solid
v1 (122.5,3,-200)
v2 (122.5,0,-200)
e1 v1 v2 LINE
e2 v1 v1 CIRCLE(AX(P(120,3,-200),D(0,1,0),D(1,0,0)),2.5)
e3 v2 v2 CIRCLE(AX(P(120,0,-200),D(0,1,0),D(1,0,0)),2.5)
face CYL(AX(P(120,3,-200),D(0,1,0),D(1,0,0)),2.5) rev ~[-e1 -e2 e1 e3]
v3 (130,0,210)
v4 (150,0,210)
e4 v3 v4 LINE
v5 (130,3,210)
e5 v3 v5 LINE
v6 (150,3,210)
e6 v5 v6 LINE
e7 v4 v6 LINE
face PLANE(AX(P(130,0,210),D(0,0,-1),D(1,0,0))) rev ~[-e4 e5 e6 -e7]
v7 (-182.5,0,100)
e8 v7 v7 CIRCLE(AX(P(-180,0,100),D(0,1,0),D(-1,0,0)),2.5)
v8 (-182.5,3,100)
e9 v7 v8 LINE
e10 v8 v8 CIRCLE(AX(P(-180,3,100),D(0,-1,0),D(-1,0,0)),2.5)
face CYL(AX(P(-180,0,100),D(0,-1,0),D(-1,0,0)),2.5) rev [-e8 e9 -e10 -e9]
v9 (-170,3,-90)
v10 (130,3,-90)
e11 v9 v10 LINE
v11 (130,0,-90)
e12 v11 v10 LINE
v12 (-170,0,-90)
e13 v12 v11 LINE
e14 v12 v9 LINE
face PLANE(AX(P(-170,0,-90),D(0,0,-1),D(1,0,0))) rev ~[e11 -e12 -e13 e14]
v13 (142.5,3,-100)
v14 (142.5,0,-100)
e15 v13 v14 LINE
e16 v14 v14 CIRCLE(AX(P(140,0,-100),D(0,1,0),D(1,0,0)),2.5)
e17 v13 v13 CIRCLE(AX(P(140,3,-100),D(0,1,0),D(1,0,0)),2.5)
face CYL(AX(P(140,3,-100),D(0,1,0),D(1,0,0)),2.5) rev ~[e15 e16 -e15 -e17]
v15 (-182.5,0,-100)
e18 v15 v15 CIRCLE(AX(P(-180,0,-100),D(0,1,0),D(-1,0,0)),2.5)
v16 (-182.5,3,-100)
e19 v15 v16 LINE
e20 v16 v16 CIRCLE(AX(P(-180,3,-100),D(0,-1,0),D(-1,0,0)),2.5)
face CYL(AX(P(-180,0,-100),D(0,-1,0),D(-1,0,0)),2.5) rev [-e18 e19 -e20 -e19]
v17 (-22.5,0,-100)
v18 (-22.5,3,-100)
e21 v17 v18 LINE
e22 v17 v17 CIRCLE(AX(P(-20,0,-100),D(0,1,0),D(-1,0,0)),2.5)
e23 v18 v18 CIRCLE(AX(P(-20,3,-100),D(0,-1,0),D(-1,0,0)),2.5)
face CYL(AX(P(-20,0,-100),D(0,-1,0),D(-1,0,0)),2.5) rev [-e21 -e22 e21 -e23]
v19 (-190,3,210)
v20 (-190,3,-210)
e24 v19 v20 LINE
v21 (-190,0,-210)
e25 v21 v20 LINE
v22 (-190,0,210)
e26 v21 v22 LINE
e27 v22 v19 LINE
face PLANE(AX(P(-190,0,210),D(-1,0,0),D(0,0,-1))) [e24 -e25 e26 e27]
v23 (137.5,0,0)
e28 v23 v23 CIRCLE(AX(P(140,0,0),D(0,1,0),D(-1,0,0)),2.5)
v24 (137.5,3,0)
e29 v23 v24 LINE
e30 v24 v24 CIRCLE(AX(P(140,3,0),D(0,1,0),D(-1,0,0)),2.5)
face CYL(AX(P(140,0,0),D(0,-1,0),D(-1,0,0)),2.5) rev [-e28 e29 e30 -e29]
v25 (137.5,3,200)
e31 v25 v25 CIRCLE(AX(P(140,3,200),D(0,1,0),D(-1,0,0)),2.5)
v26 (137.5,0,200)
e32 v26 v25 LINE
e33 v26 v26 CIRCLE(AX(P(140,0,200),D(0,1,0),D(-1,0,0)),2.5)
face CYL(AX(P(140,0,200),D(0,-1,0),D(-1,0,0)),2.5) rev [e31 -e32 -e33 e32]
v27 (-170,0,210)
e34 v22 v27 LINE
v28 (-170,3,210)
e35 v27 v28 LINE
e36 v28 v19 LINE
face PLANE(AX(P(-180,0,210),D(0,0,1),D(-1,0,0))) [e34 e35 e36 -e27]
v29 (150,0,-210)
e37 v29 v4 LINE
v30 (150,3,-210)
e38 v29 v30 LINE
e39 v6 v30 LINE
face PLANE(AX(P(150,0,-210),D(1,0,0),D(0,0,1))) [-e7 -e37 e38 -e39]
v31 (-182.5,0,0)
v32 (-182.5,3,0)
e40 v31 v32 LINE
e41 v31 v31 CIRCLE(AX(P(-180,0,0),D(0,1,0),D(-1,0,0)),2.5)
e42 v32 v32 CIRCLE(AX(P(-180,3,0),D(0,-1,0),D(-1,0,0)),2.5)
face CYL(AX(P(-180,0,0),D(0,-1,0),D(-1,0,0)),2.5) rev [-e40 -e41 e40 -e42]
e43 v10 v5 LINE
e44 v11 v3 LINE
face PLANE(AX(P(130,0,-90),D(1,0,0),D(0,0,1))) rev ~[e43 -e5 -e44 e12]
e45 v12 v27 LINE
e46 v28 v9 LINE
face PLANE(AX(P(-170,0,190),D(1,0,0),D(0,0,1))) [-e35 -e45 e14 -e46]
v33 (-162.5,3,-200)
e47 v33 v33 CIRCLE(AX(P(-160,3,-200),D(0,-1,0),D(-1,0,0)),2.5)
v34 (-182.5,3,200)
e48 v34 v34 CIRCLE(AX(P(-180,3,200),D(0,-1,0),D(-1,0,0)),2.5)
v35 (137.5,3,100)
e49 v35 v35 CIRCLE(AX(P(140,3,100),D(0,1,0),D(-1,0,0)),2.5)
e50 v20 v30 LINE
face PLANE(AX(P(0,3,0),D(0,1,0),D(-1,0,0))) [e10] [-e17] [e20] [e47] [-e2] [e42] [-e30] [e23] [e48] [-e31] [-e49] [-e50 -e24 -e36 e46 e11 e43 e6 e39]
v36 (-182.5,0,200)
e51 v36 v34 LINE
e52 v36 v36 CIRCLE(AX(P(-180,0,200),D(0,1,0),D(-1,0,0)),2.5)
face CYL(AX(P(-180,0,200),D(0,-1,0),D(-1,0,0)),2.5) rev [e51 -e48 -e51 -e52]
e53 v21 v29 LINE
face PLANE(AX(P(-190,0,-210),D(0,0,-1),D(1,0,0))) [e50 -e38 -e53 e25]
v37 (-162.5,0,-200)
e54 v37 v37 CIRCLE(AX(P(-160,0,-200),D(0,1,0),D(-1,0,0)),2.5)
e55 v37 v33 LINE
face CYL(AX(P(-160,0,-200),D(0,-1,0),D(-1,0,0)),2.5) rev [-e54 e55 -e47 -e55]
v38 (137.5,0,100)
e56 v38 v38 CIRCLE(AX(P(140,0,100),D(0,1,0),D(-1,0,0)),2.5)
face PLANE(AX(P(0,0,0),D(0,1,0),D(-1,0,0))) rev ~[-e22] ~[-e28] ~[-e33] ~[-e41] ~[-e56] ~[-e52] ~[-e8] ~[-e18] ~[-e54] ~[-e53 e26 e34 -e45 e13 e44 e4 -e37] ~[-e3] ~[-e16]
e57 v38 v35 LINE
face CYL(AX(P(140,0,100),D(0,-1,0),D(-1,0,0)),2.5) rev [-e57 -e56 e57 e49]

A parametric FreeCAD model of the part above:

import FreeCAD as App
import Part
import Sketcher

V = App.Vector


def add_polygon(sketch, points):
    """Adds a closed chain of lines whose ends are joined by coincident constraints."""
    first, n = sketch.GeometryCount, len(points)
    for a, b in zip(points, points[1:] + points[:1]):
        sketch.addGeometry(Part.LineSegment(App.Vector(*a, 0), App.Vector(*b, 0)), False)
    for i in range(n):
        sketch.addConstraint(Sketcher.Constraint("Coincident", first + i, 2, first + (i + 1) % n, 1))

doc = App.newDocument("Part")
params = doc.addObject("Spreadsheet::Sheet", "Params")
for row, (alias, value) in enumerate([
    ("sketch1_diameter", "5 mm"),
    ("sketch1_width", "20 mm"),
    ("sketch1_width2", "340 mm"),
    ("sketch1_height", "420 mm"),
    ("pad1_length", "3 mm"),
    ("sketch2_diameter", "5 mm"),
    ("pocket1_length", "3 mm"),
], start=1):
    params.set(f"A{row}", alias)
    params.set(f"B{row}", "=" + value)
    params.setAlias(f"B{row}", alias)

body = doc.addObject("PartDesign::Body", "Body")

sketch1 = body.newObject("Sketcher::SketchObject", "Sketch")
sketch1.AttachmentSupport = (doc.getObject("XZ_Plane"), [""])
sketch1.MapMode = "FlatFace"
add_polygon(sketch1, [(-190, 210), (-170, 210), (-170, -90), (130, -90), (130, 210), (150, 210), (150, -210), (-190, -210)])
sketch1.addGeometry(Part.Circle(V(-180, 0, 0), V(0, 0, 1), 2.5), False)
sketch1.addGeometry(Part.Circle(V(-180, 100, 0), V(0, 0, 1), 2.5), False)
sketch1.addGeometry(Part.Circle(V(-180, 200, 0), V(0, 0, 1), 2.5), False)
sketch1.addGeometry(Part.Circle(V(-180, -100, 0), V(0, 0, 1), 2.5), False)
sketch1.addGeometry(Part.Circle(V(-160, -200, 0), V(0, 0, 1), 2.5), False)
sketch1.addGeometry(Part.Circle(V(-20, -100, 0), V(0, 0, 1), 2.5), False)
sketch1.addGeometry(Part.Circle(V(140, 200, 0), V(0, 0, 1), 2.5), False)
sketch1.addGeometry(Part.Circle(V(140, 0, 0), V(0, 0, 1), 2.5), False)
sketch1.addGeometry(Part.Circle(V(140, 100, 0), V(0, 0, 1), 2.5), False)
sketch1.addConstraint(Sketcher.Constraint("Horizontal", 0))
sketch1.addConstraint(Sketcher.Constraint("Vertical", 1))
sketch1.addConstraint(Sketcher.Constraint("Horizontal", 2))
sketch1.addConstraint(Sketcher.Constraint("Vertical", 3))
sketch1.addConstraint(Sketcher.Constraint("Horizontal", 4))
sketch1.addConstraint(Sketcher.Constraint("Vertical", 5))
sketch1.addConstraint(Sketcher.Constraint("Horizontal", 6))
sketch1.addConstraint(Sketcher.Constraint("Vertical", 7))
sketch1.addConstraint(Sketcher.Constraint("Equal", 8, 9))
sketch1.addConstraint(Sketcher.Constraint("Equal", 9, 10))
sketch1.addConstraint(Sketcher.Constraint("Equal", 10, 11))
sketch1.addConstraint(Sketcher.Constraint("Equal", 11, 12))
sketch1.addConstraint(Sketcher.Constraint("Equal", 12, 13))
sketch1.addConstraint(Sketcher.Constraint("Equal", 13, 14))
sketch1.addConstraint(Sketcher.Constraint("Equal", 14, 15))
sketch1.addConstraint(Sketcher.Constraint("Equal", 15, 16))
sketch1.addConstraint(Sketcher.Constraint("Symmetric", 9, 3, 11, 3, -1))
sketch1.addConstraint(Sketcher.Constraint("PointOnObject", 8, 3, -1))
sketch1.addConstraint(Sketcher.Constraint("PointOnObject", 15, 3, -1))
sketch1.addConstraint(Sketcher.Constraint("Horizontal", 11, 3, 13, 3))
sketch1.addConstraint(Sketcher.Constraint("Horizontal", 10, 3, 14, 3))
sketch1.addConstraint(Sketcher.Constraint("Horizontal", 9, 3, 16, 3))
sketch1.addConstraint(Sketcher.Constraint("Horizontal", 0, 2, 3, 2))
sketch1.addConstraint(Sketcher.Constraint("Vertical", 8, 3, 9, 3))
sketch1.addConstraint(Sketcher.Constraint("Vertical", 9, 3, 10, 3))
sketch1.addConstraint(Sketcher.Constraint("Vertical", 14, 3, 15, 3))
sketch1.addConstraint(Sketcher.Constraint("Vertical", 15, 3, 16, 3))
sketch1.addConstraint(Sketcher.Constraint("Equal", 0, 4))
sketch1.addConstraint(Sketcher.Constraint("Equal", 2, 1))
sketch1.addConstraint(Sketcher.Constraint("Diameter", 8, 5.0))
sketch1.addConstraint(Sketcher.Constraint("DistanceX", 0, 1, 0, 2, 20.0))
sketch1.addConstraint(Sketcher.Constraint("DistanceX", 6, 2, 6, 1, 340.0))
sketch1.addConstraint(Sketcher.Constraint("DistanceY", 5, 2, 5, 1, 420.0))
sketch1.addConstraint(Sketcher.Constraint("DistanceX", 13, 3, -1, 1, 20.0))
sketch1.addConstraint(Sketcher.Constraint("DistanceX", -1, 1, 14, 3, 140.0))
sketch1.addConstraint(Sketcher.Constraint("DistanceX", 11, 3, 12, 3, 20.0))
sketch1.addConstraint(Sketcher.Constraint("DistanceX", 12, 3, 13, 3, 140.0))
sketch1.addConstraint(Sketcher.Constraint("DistanceX", 10, 3, 0, 2, 10.0))
sketch1.addConstraint(Sketcher.Constraint("DistanceY", 10, 3, 0, 2, 10.0))
sketch1.addConstraint(Sketcher.Constraint("DistanceY", 11, 3, 1, 2, 10.0))
sketch1.addConstraint(Sketcher.Constraint("DistanceY", 5, 2, 12, 3, 10.0))
sketch1.addConstraint(Sketcher.Constraint("DistanceY", -1, 1, 9, 3, 100.0))
sketch1.setExpression("Constraints[37]", "Params.sketch1_diameter")
sketch1.setExpression("Constraints[38]", "Params.sketch1_width")
sketch1.setExpression("Constraints[39]", "Params.sketch1_width2")
sketch1.setExpression("Constraints[40]", "Params.sketch1_height")
pad1 = body.newObject("PartDesign::Pad", "Pad")
pad1.Profile = sketch1
pad1.setExpression("Length", "Params.pad1_length")
pad1.Reversed = True

sketch2 = body.newObject("Sketcher::SketchObject", "Sketch001")
sketch2.AttachmentSupport = (doc.getObject("XZ_Plane"), [""])
sketch2.MapMode = "FlatFace"
sketch2.AttachmentOffset = App.Placement(V(0, 0, -3), App.Rotation())
sketch2.addGeometry(Part.Circle(V(120, -200, 0), V(0, 0, 1), 2.5), False)
sketch2.addGeometry(Part.Circle(V(140, -100, 0), V(0, 0, 1), 2.5), False)
sketch2.addConstraint(Sketcher.Constraint("Equal", 0, 1))
sketch2.addConstraint(Sketcher.Constraint("Diameter", 0, 5.0))
sketch2.addConstraint(Sketcher.Constraint("DistanceX", -1, 1, 0, 3, 120.0))
sketch2.addConstraint(Sketcher.Constraint("DistanceY", 0, 3, -1, 1, 200.0))
sketch2.addConstraint(Sketcher.Constraint("DistanceX", -1, 1, 1, 3, 140.0))
sketch2.addConstraint(Sketcher.Constraint("DistanceY", 1, 3, -1, 1, 100.0))
sketch2.setExpression("Constraints[1]", "Params.sketch2_diameter")
pocket1 = body.newObject("PartDesign::Pocket", "Pocket")
pocket1.Profile = sketch2
pocket1.setExpression("Length", "Params.pocket1_length")
pocket1.Reversed = True

doc.recompute()
